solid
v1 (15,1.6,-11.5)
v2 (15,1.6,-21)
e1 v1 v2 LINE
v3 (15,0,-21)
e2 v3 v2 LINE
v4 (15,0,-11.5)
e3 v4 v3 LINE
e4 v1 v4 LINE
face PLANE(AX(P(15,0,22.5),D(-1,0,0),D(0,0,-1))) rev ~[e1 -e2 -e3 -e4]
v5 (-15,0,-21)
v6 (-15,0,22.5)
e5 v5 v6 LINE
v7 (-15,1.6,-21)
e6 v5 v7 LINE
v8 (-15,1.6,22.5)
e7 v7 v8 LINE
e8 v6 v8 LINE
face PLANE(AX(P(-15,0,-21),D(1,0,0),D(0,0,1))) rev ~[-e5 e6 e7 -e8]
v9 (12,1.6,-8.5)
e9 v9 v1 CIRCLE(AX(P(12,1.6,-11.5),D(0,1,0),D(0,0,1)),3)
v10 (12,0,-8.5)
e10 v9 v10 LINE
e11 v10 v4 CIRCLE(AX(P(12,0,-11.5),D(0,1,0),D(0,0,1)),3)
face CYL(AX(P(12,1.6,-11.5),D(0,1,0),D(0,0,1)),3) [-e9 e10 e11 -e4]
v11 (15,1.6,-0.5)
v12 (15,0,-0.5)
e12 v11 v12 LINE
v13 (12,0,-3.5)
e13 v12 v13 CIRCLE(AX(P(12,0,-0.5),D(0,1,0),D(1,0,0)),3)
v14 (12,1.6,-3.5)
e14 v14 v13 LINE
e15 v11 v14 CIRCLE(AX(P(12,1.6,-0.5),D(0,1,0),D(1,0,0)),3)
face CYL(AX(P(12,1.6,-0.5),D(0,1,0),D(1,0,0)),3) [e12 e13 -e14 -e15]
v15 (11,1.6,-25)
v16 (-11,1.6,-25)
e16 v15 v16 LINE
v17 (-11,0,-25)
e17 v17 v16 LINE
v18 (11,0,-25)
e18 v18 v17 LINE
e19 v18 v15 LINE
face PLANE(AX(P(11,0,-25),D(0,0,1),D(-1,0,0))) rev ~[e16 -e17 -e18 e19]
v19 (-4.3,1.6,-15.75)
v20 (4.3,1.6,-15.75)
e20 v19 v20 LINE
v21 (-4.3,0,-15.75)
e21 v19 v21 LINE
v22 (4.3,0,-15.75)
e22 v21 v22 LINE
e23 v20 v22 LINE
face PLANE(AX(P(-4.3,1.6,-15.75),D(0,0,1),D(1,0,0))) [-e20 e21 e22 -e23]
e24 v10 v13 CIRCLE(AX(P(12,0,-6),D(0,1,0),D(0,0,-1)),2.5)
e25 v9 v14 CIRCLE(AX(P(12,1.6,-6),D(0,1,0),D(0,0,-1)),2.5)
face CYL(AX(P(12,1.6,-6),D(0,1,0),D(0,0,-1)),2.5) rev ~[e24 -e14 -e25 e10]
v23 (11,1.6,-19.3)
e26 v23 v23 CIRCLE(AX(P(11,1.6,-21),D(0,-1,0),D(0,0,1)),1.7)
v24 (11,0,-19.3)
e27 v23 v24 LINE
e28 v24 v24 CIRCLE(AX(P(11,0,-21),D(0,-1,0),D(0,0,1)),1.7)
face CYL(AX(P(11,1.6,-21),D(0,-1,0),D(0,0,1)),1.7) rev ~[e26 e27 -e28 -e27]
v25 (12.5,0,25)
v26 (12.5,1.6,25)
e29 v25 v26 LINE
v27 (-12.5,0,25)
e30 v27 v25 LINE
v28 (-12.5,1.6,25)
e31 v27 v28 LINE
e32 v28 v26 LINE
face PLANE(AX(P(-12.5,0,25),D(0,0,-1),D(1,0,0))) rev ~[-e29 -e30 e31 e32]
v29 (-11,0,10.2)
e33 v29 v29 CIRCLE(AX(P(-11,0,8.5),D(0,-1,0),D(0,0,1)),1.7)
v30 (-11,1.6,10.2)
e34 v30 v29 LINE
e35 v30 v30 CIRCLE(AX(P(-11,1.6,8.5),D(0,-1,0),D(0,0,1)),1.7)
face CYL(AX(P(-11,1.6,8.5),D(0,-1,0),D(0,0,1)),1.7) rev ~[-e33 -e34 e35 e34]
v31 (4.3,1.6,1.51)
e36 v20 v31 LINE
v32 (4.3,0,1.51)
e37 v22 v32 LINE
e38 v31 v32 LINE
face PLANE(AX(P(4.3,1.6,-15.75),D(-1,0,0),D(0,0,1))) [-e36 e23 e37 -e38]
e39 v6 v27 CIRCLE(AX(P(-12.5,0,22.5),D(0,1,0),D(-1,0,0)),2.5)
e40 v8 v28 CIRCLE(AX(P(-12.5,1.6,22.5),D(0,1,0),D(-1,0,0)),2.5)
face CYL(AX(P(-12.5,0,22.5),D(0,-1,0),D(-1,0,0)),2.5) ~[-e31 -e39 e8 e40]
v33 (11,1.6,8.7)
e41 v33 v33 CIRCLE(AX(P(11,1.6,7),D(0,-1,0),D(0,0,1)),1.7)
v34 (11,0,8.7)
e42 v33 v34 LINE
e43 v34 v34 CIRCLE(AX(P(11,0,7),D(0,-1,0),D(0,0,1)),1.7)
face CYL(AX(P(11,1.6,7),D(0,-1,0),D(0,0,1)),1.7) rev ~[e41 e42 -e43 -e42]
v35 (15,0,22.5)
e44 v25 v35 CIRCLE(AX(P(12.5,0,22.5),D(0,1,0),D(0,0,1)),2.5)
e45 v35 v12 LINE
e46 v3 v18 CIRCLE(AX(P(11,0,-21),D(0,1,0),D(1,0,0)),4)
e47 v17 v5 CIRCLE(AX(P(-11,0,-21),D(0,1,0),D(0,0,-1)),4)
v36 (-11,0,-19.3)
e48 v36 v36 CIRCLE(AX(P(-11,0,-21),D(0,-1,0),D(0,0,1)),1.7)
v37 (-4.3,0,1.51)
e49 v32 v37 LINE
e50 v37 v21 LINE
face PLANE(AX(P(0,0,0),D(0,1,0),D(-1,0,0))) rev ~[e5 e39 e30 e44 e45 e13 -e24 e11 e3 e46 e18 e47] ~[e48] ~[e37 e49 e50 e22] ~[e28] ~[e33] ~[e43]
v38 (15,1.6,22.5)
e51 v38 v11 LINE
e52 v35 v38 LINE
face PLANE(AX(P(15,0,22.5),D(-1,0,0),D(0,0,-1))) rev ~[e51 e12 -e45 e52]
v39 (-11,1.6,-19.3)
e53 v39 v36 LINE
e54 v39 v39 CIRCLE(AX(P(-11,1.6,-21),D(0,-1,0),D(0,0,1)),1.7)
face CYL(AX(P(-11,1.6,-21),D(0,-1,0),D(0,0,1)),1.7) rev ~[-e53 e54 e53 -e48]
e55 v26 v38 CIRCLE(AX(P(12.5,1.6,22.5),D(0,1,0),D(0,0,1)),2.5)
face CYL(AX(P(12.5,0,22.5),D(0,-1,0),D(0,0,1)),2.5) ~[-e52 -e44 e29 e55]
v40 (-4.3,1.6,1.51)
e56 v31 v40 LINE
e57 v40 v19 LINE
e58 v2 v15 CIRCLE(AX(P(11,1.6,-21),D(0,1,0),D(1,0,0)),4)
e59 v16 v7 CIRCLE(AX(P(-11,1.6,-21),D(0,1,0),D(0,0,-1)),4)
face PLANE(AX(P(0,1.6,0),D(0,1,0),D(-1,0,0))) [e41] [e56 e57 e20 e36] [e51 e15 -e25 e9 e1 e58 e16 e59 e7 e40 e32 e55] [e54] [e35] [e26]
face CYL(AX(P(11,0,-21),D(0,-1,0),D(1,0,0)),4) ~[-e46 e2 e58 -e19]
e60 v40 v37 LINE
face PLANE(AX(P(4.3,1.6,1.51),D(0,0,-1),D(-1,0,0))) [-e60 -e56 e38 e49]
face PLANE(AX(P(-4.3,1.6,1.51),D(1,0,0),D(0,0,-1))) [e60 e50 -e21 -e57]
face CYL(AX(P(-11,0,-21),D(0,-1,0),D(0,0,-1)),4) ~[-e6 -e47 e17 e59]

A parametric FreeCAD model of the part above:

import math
import FreeCAD as App
import Part
import Sketcher

V = App.Vector
Q = App.Units.Quantity


def add_polygon(sketch, points):
    """Adds a closed chain of lines whose ends are joined by coincident constraints."""
    first, n = sketch.GeometryCount, len(points)
    for a, b in zip(points, points[1:] + points[:1]):
        sketch.addGeometry(Part.LineSegment(App.Vector(*a, 0), App.Vector(*b, 0)), False)
    for i in range(n):
        sketch.addConstraint(Sketcher.Constraint("Coincident", first + i, 2, first + (i + 1) % n, 1))

doc = App.newDocument("Part")
body = doc.addObject("PartDesign::Body", "Body")

# Sketch on XZ plane
sketch1 = body.newObject("Sketcher::SketchObject", "Sketch")
sketch1.AttachmentSupport = (doc.getObject("XZ_Plane"), [""])
sketch1.MapMode = "FlatFace"
sketch1.addGeometry(Part.ArcOfCircle(Part.Circle(V(-12.5, 22.5, 0), V(0, 0, 1), 2.5), math.radians(90), math.radians(180)), False)
sketch1.addGeometry(Part.LineSegment(V(-12.5, 25, 0), V(12.5, 25, 0)), False)
sketch1.addGeometry(Part.ArcOfCircle(Part.Circle(V(12.5, 22.5, 0), V(0, 0, 1), 2.5), math.radians(0), math.radians(90)), False)
sketch1.addGeometry(Part.LineSegment(V(15, 22.5, 0), V(15, -21, 0)), False)
sketch1.addGeometry(Part.ArcOfCircle(Part.Circle(V(11, -21, 0), V(0, 0, 1), 4), math.radians(-90), math.radians(0)), False)
sketch1.addGeometry(Part.LineSegment(V(11, -25, 0), V(-11, -25, 0)), False)
sketch1.addGeometry(Part.ArcOfCircle(Part.Circle(V(-11, -21, 0), V(0, 0, 1), 4), math.radians(180), math.radians(270)), False)
sketch1.addGeometry(Part.LineSegment(V(-15, -21, 0), V(-15, 22.5, 0)), False)
sketch1.addConstraint(Sketcher.Constraint("Tangent", 0, 1, 1, 1))
sketch1.addConstraint(Sketcher.Constraint("Tangent", 1, 2, 2, 2))
sketch1.addConstraint(Sketcher.Constraint("Tangent", 2, 1, 3, 1))
sketch1.addConstraint(Sketcher.Constraint("Tangent", 3, 2, 4, 2))
sketch1.addConstraint(Sketcher.Constraint("Tangent", 4, 1, 5, 1))
sketch1.addConstraint(Sketcher.Constraint("Tangent", 5, 2, 6, 2))
sketch1.addConstraint(Sketcher.Constraint("Tangent", 6, 1, 7, 1))
sketch1.addConstraint(Sketcher.Constraint("Tangent", 7, 2, 0, 2))
sketch1.addConstraint(Sketcher.Constraint("Horizontal", 1))
sketch1.addConstraint(Sketcher.Constraint("Vertical", 3))
sketch1.addConstraint(Sketcher.Constraint("Horizontal", 5))
sketch1.addConstraint(Sketcher.Constraint("Vertical", 7))
sketch1.addConstraint(Sketcher.Constraint("Equal", 0, 2))
sketch1.addConstraint(Sketcher.Constraint("Equal", 4, 6))
sketch1.addConstraint(Sketcher.Constraint("Radius", 4, Q("4 mm")))
sketch1.addConstraint(Sketcher.Constraint("Radius", 0, Q("2.5 mm")))
sketch1.addConstraint(Sketcher.Constraint("DistanceX", -1, 1, 2, 1, Q("15 mm")))
sketch1.addConstraint(Sketcher.Constraint("DistanceX", 6, 1, -1, 1, Q("15 mm")))
sketch1.addConstraint(Sketcher.Constraint("DistanceY", 3, 2, 3, 1, Q("43.5 mm")))
sketch1.addConstraint(Sketcher.Constraint("DistanceY", 4, 3, -1, 1, Q("21 mm")))
pad1 = body.newObject("PartDesign::Pad", "Pad")
pad1.Profile = sketch1
pad1.Length = 1.6
pad1.Reversed = True

# Sketch on XZ plane
sketch2 = body.newObject("Sketcher::SketchObject", "Sketch001")
sketch2.AttachmentSupport = (doc.getObject("XZ_Plane"), [""])
sketch2.MapMode = "FlatFace"
sketch2.AttachmentOffset = App.Placement(V(0, 0, -1.6), App.Rotation())
sketch2.addGeometry(Part.Circle(V(11, -21, 0), V(0, 0, 1), 1.7), False)
sketch2.addGeometry(Part.Circle(V(-11, -21, 0), V(0, 0, 1), 1.7), False)
sketch2.addGeometry(Part.Circle(V(-11, 8.5, 0), V(0, 0, 1), 1.7), False)
sketch2.addGeometry(Part.Circle(V(11, 7, 0), V(0, 0, 1), 1.7), False)
sketch2.addConstraint(Sketcher.Constraint("Equal", 0, 1))
sketch2.addConstraint(Sketcher.Constraint("Equal", 1, 2))
sketch2.addConstraint(Sketcher.Constraint("Equal", 2, 3))
sketch2.addConstraint(Sketcher.Constraint("Symmetric", 0, 3, 1, 3, -2))
sketch2.addConstraint(Sketcher.Constraint("Vertical", 1, 3, 2, 3))
sketch2.addConstraint(Sketcher.Constraint("Vertical", 0, 3, 3, 3))
sketch2.addConstraint(Sketcher.Constraint("Diameter", 0, Q("3.4 mm")))
sketch2.addConstraint(Sketcher.Constraint("DistanceX", -1, 1, 0, 3, Q("11 mm")))
sketch2.addConstraint(Sketcher.Constraint("DistanceY", 0, 3, -1, 1, Q("21 mm")))
sketch2.addConstraint(Sketcher.Constraint("DistanceY", -1, 1, 3, 3, Q("7 mm")))
sketch2.addConstraint(Sketcher.Constraint("DistanceY", -1, 1, 2, 3, Q("8.5 mm")))
doc.recompute()
hole = body.newObject("PartDesign::Hole", "Hole")
hole.Profile = sketch2
hole.ThreadType = "None"
hole.Diameter = 3.4
hole.DepthType = "ThroughAll"
hole.Reversed = True

# Sketch on XZ plane
sketch3 = body.newObject("Sketcher::SketchObject", "Sketch002")
sketch3.AttachmentSupport = (doc.getObject("XZ_Plane"), [""])
sketch3.MapMode = "FlatFace"
sketch3.AttachmentOffset = App.Placement(V(0, 0, -1.6), App.Rotation())
add_polygon(sketch3, [(-4, 2), (4, 2), (4, -16), (-4, -16)])  # lines 0-3
sketch3.addConstraint(Sketcher.Constraint("Horizontal", 0))
sketch3.addConstraint(Sketcher.Constraint("Vertical", 1))
sketch3.addConstraint(Sketcher.Constraint("Horizontal", 2))
sketch3.addConstraint(Sketcher.Constraint("Vertical", 3))
sketch3.addConstraint(Sketcher.Constraint("DistanceX", 0, 1, 0, 2, Q("8.6 mm")))
sketch3.addConstraint(Sketcher.Constraint("DistanceY", 1, 2, 1, 1, Q("17.26 mm")))
sketch3.addConstraint(Sketcher.Constraint("DistanceX", -1, 1, 0, 2, Q("4.3 mm")))
sketch3.addConstraint(Sketcher.Constraint("DistanceY", -1, 1, 0, 2, Q("1.51 mm")))
pocket1 = body.newObject("PartDesign::Pocket", "Pocket")
pocket1.Profile = sketch3
pocket1.Type = "ThroughAll"
pocket1.Reversed = True

# Sketch on XZ plane
sketch4 = body.newObject("Sketcher::SketchObject", "Sketch003")
sketch4.AttachmentSupport = (doc.getObject("XZ_Plane"), [""])
sketch4.MapMode = "FlatFace"
sketch4.AttachmentOffset = App.Placement(V(0, 0, -1.6), App.Rotation())
sketch4.addGeometry(Part.ArcOfCircle(Part.Circle(V(12, -0.5, 0), V(0, 0, 1), 3), math.radians(-90), math.radians(0)), False)
sketch4.addGeometry(Part.LineSegment(V(15, -0.5, 0), V(15, -11.5, 0)), False)
sketch4.addGeometry(Part.ArcOfCircle(Part.Circle(V(12, -11.5, 0), V(0, 0, 1), 3), math.radians(0), math.radians(90)), False)
sketch4.addGeometry(Part.ArcOfCircle(Part.Circle(V(12, -6, 0), V(0, 0, 1), 2.5), math.radians(90), math.radians(270)), False)
sketch4.addConstraint(Sketcher.Constraint("Tangent", 0, 2, 1, 1))
sketch4.addConstraint(Sketcher.Constraint("Tangent", 1, 2, 2, 1))
sketch4.addConstraint(Sketcher.Constraint("Tangent", 2, 2, 3, 2))
sketch4.addConstraint(Sketcher.Constraint("Tangent", 3, 1, 0, 1))
sketch4.addConstraint(Sketcher.Constraint("Vertical", 1))
sketch4.addConstraint(Sketcher.Constraint("Equal", 0, 2))
sketch4.addConstraint(Sketcher.Constraint("Vertical", 2, 3, 3, 3))
sketch4.addConstraint(Sketcher.Constraint("Radius", 0, Q("3 mm")))
sketch4.addConstraint(Sketcher.Constraint("Radius", 3, Q("2.5 mm")))
sketch4.addConstraint(Sketcher.Constraint("DistanceX", -1, 1, 0, 3, Q("12 mm")))
sketch4.addConstraint(Sketcher.Constraint("DistanceY", 3, 3, -1, 1, Q("6 mm")))
pocket2 = body.newObject("PartDesign::Pocket", "Pocket001")
pocket2.Profile = sketch4
pocket2.Type = "ThroughAll"
pocket2.Reversed = True

doc.recompute()
